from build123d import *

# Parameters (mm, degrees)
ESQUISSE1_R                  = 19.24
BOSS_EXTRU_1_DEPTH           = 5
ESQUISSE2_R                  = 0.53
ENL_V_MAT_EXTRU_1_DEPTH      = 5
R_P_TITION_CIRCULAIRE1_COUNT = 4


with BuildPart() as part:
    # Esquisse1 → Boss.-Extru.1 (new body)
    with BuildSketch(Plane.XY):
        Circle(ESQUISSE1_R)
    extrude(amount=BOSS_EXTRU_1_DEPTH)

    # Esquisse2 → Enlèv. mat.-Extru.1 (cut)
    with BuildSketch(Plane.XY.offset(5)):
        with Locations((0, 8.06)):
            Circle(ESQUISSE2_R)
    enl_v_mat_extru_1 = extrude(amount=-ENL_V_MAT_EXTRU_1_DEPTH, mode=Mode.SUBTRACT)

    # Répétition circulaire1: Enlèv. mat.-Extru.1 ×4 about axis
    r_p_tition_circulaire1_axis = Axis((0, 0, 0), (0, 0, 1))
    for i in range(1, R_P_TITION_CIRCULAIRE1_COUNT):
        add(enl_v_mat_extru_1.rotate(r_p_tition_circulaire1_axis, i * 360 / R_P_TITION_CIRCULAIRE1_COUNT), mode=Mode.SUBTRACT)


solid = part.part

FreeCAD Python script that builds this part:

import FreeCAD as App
import Part
import Sketcher

V = App.Vector
Q = App.Units.Quantity

doc = App.newDocument("Part")
params = doc.addObject("Spreadsheet::Sheet", "Params")
for row, (alias, value) in enumerate([
    ("sketch1_diameter", "38.48 mm"),
    ("pad1_length", "5 mm"),
    ("sketch2_diameter", "1.06 mm"),
    ("pocket1_length", "5 mm"),
], start=1):
    params.set(f"A{row}", alias)
    params.set(f"B{row}", "=" + value)
    params.setAlias(f"B{row}", alias)

body = doc.addObject("PartDesign::Body", "Body")

sketch1 = doc.addObject("Sketcher::SketchObject", "Sketch")
body.addObject(sketch1)
sketch1.AttachmentSupport = (doc.XY_Plane, [""])
sketch1.MapMode = "FlatFace"
sketch1.addGeometry(Part.Circle(V(0, 0, 0), V(0, 0, 1), 19), False)
sketch1.addConstraint([
    Sketcher.Constraint("Coincident", 0, 3, -1, 1),
    Sketcher.Constraint("Diameter", 0, Q("38.48 mm")),
])
sketch1.setExpression("Constraints[1]", "Params.sketch1_diameter")
pad1 = doc.addObject("PartDesign::Pad", "Pad")
body.addObject(pad1)
pad1.Profile = sketch1
pad1.setExpression("Length", "Params.pad1_length")

sketch2 = doc.addObject("Sketcher::SketchObject", "Sketch001")
body.addObject(sketch2)
sketch2.AttachmentSupport = (doc.XY_Plane, [""])
sketch2.MapMode = "FlatFace"
sketch2.AttachmentOffset = App.Placement(V(0, 0, 5), App.Rotation())
sketch2.addGeometry(Part.Circle(V(0, 8.1, 0), V(0, 0, 1), 0.5), False)
sketch2.addConstraint([
    Sketcher.Constraint("PointOnObject", 0, 3, -2),
    Sketcher.Constraint("Diameter", 0, Q("1.06 mm")),
    Sketcher.Constraint("DistanceY", -1, 1, 0, 3, Q("8.06 mm")),
])
sketch2.setExpression("Constraints[1]", "Params.sketch2_diameter")
pocket1 = doc.addObject("PartDesign::Pocket", "Pocket")
body.addObject(pocket1)
pocket1.Profile = sketch2
pocket1.setExpression("Length", "Params.pocket1_length")
doc.recompute()

polarpattern = doc.addObject("PartDesign::PolarPattern", "PolarPattern")
body.addObject(polarpattern)
polarpattern.Originals = [pocket1]
polarpattern.Axis = (doc.Z_Axis, [""])
polarpattern.Angle = 360
polarpattern.Occurrences = 4
body.Tip = polarpattern

doc.recompute()
